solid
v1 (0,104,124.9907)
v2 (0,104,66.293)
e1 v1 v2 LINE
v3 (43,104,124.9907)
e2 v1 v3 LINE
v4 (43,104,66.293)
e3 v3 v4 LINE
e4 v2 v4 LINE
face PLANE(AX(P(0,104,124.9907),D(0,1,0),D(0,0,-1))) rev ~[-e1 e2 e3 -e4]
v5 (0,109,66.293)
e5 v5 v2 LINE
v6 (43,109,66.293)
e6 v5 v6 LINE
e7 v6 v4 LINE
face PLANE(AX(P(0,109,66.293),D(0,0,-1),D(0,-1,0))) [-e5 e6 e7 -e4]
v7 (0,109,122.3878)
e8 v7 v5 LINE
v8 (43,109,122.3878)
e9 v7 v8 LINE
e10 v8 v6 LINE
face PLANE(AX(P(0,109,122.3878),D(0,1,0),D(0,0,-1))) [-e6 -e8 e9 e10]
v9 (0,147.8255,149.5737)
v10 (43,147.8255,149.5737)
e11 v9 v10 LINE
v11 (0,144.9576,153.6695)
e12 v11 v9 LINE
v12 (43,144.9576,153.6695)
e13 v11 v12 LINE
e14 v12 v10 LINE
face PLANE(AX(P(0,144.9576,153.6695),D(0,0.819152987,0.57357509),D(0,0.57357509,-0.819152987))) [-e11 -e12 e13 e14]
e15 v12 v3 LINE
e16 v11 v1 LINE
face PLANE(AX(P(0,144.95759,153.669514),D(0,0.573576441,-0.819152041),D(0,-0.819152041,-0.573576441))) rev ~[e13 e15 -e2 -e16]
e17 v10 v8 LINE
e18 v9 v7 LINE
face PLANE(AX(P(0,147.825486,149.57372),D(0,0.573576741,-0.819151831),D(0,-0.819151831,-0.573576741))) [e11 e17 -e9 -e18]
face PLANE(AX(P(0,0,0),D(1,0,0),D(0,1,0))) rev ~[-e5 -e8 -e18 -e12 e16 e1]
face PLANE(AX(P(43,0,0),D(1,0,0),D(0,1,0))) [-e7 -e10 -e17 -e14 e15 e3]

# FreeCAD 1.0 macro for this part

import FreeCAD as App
import Part
import Sketcher

V = App.Vector
Q = App.Units.Quantity


def add_polygon(sketch, points):
    """Adds a closed chain of lines whose ends are joined by coincident constraints."""
    first, n = sketch.GeometryCount, len(points)
    for a, b in zip(points, points[1:] + points[:1]):
        sketch.addGeometry(Part.LineSegment(App.Vector(*a, 0), App.Vector(*b, 0)), False)
    for i in range(n):
        sketch.addConstraint(Sketcher.Constraint("Coincident", first + i, 2, first + (i + 1) % n, 1))

doc = App.newDocument("Part")
body = doc.addObject("PartDesign::Body", "Body")

# Sketch on YZ plane
sketch1 = doc.addObject("Sketcher::SketchObject", "Sketch")
body.addObject(sketch1)
sketch1.AttachmentSupport = (doc.YZ_Plane, [""])
sketch1.MapMode = "FlatFace"
add_polygon(sketch1, [(145, 154), (104, 125), (104, 66), (109, 66), (109, 122), (148, 150)])  # lines 0-5
sketch1.addConstraint([
    Sketcher.Constraint("Vertical", 1),
    Sketcher.Constraint("Horizontal", 2),
    Sketcher.Constraint("Vertical", 3),
    Sketcher.Constraint("Parallel", 0, 4),
    Sketcher.Constraint("Perpendicular", 4, 5),
    Sketcher.Constraint("Distance", 0, 50.0),
    Sketcher.Constraint("DistanceX", 2, 1, 2, 2, 5.0),
    Sketcher.Constraint("Angle", 0, Q("-145 deg")),
    Sketcher.Constraint("Distance", 5, 5.0),
    Sketcher.Constraint("DistanceY", 1, 2, 1, 1, 58.6977),
    Sketcher.Constraint("DistanceX", -1, 1, 0, 2, 104.0),
    Sketcher.Constraint("DistanceY", -1, 1, 1, 2, 66.293),
])
pad1 = doc.addObject("PartDesign::Pad", "Pad")
body.addObject(pad1)
pad1.Profile = sketch1
pad1.Length = 43

doc.recompute()
